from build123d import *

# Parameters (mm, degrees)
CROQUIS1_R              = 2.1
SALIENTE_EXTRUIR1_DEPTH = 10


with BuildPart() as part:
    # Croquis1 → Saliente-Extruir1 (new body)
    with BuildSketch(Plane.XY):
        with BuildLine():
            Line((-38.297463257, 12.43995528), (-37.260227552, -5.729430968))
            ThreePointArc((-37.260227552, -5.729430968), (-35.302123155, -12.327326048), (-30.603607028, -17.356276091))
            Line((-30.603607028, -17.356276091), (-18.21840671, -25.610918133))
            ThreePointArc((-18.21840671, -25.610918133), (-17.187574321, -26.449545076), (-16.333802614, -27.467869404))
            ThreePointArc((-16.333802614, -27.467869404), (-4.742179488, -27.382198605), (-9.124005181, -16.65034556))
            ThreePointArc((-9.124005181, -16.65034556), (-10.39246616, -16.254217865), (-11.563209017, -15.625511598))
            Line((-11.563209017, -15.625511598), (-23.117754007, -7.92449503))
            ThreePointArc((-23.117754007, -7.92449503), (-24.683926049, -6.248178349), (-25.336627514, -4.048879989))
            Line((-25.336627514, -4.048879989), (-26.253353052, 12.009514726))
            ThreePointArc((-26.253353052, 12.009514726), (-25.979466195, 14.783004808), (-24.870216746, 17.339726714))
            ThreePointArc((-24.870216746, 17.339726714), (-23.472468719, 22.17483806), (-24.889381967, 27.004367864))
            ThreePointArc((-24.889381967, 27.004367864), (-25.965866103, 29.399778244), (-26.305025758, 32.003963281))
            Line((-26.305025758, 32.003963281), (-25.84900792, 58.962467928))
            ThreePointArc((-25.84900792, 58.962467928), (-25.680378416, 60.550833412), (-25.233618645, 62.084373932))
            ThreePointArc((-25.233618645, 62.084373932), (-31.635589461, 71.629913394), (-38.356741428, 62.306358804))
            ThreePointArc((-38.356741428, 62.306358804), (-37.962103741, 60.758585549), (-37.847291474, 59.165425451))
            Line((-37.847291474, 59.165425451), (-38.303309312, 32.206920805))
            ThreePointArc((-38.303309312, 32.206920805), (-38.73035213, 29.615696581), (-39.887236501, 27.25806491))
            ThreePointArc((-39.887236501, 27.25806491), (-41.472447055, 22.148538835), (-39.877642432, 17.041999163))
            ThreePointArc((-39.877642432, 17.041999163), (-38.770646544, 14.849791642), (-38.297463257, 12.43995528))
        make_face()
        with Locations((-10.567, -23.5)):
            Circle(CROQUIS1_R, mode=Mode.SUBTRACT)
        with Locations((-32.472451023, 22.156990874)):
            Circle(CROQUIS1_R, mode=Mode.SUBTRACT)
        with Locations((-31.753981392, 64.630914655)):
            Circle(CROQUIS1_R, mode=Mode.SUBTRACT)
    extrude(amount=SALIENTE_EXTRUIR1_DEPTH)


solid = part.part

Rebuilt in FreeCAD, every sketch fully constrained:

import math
import FreeCAD as App
import Part
import Sketcher
Q = App.Units.Quantity

doc = App.newDocument("Part")
body = doc.addObject("PartDesign::Body", "Body")

# Sketch on XY plane
sketch1 = body.newObject("Sketcher::SketchObject", "Sketch")
sketch1.AttachmentSupport = (doc.getObject("XY_Plane"), [""])
sketch1.MapMode = "FlatFace"
sketch1.addGeometry(Part.LineSegment(App.Vector(-38.3, 12.4, 0), App.Vector(-37.3, -5.7, 0)), False)
sketch1.addGeometry(Part.ArcOfCircle(Part.Circle(App.Vector(-22.3, -4.9, 0), App.Vector(0, 0, 1), 15), math.radians(-177), math.radians(-124)), False)
sketch1.addGeometry(Part.LineSegment(App.Vector(-30.6, -17.4, 0), App.Vector(-18.2, -25.6, 0)), False)
sketch1.addGeometry(Part.ArcOfCircle(Part.Circle(App.Vector(-22.1, -31.4, 0), App.Vector(0, 0, 1), 7), math.radians(35), math.radians(56)), False)
sketch1.addGeometry(Part.ArcOfCircle(Part.Circle(App.Vector(-10.6, -23.5, 0), App.Vector(0, 0, 1), 7), math.radians(-145), math.radians(78)), False)
sketch1.addGeometry(Part.ArcOfCircle(Part.Circle(App.Vector(-7.7, -9.8, 0), App.Vector(0, 0, 1), 7), math.radians(-124), math.radians(-102)), False)
sketch1.addGeometry(Part.LineSegment(App.Vector(-11.6, -15.6, 0), App.Vector(-23.1, -7.9, 0)), False)
sketch1.addGeometry(Part.ArcOfCircle(Part.Circle(App.Vector(-20.3, -3.8, 0), App.Vector(0, 0, 1), 5), math.radians(-177), math.radians(-124)), False)
sketch1.addGeometry(Part.LineSegment(App.Vector(-25.3, -4, 0), App.Vector(-26.3, 12, 0)), False)
sketch1.addGeometry(Part.ArcOfCircle(Part.Circle(App.Vector(-17.3, 12.5, 0), App.Vector(0, 0, 1), 9), math.radians(148), math.radians(183)), False)
sketch1.addGeometry(Part.ArcOfCircle(Part.Circle(App.Vector(-32.5, 22.2, 0), App.Vector(0, 0, 1), 9), math.radians(-32), math.radians(33)), False)
sketch1.addGeometry(Part.ArcOfCircle(Part.Circle(App.Vector(-17.3, 31.9, 0), App.Vector(0, 0, 1), 9), math.radians(179), math.radians(213)), False)
sketch1.addGeometry(Part.LineSegment(App.Vector(-26.3, 32, 0), App.Vector(-25.8, 59, 0)), False)
sketch1.addGeometry(Part.ArcOfCircle(Part.Circle(App.Vector(-16.9, 58.8, 0), App.Vector(0, 0, 1), 9), math.radians(159), math.radians(179)), False)
sketch1.addGeometry(Part.ArcOfCircle(Part.Circle(App.Vector(-31.8, 64.6, 0), App.Vector(0, 0, 1), 7), math.radians(-21), math.radians(199)), False)
sketch1.addGeometry(Part.ArcOfCircle(Part.Circle(App.Vector(-46.8, 59.3, 0), App.Vector(0, 0, 1), 9), math.radians(-1), math.radians(19)), False)
sketch1.addGeometry(Part.LineSegment(App.Vector(-37.8, 59.2, 0), App.Vector(-38.3, 32.2, 0)), False)
sketch1.addGeometry(Part.ArcOfCircle(Part.Circle(App.Vector(-47.3, 32.4, 0), App.Vector(0, 0, 1), 9), math.radians(-35), math.radians(-1)), False)
sketch1.addGeometry(Part.ArcOfCircle(Part.Circle(App.Vector(-32.5, 22.2, 0), App.Vector(0, 0, 1), 9), math.radians(145), math.radians(215)), False)
sketch1.addGeometry(Part.ArcOfCircle(Part.Circle(App.Vector(-47.3, 11.9, 0), App.Vector(0, 0, 1), 9), math.radians(3), math.radians(35)), False)
sketch1.addGeometry(Part.Circle(App.Vector(-10.6, -23.5, 0), App.Vector(0, 0, 1), 2.1), False)
sketch1.addGeometry(Part.Circle(App.Vector(-32.5, 22.2, 0), App.Vector(0, 0, 1), 2.1), False)
sketch1.addGeometry(Part.Circle(App.Vector(-31.8, 64.6, 0), App.Vector(0, 0, 1), 2.1), False)
sketch1.addConstraint(Sketcher.Constraint("Tangent", 0, 2, 1, 1))
sketch1.addConstraint(Sketcher.Constraint("Tangent", 1, 2, 2, 1))
sketch1.addConstraint(Sketcher.Constraint("Tangent", 2, 2, 3, 2))
sketch1.addConstraint(Sketcher.Constraint("Tangent", 3, 1, 4, 1))
sketch1.addConstraint(Sketcher.Constraint("Tangent", 4, 2, 5, 2))
sketch1.addConstraint(Sketcher.Constraint("Tangent", 5, 1, 6, 1))
sketch1.addConstraint(Sketcher.Constraint("Tangent", 6, 2, 7, 2))
sketch1.addConstraint(Sketcher.Constraint("Tangent", 7, 1, 8, 1))
sketch1.addConstraint(Sketcher.Constraint("Tangent", 8, 2, 9, 2))
sketch1.addConstraint(Sketcher.Constraint("Tangent", 9, 1, 10, 1))
sketch1.addConstraint(Sketcher.Constraint("Tangent", 10, 2, 11, 2))
sketch1.addConstraint(Sketcher.Constraint("Tangent", 11, 1, 12, 1))
sketch1.addConstraint(Sketcher.Constraint("Tangent", 12, 2, 13, 2))
sketch1.addConstraint(Sketcher.Constraint("Tangent", 13, 1, 14, 1))
sketch1.addConstraint(Sketcher.Constraint("Tangent", 14, 2, 15, 2))
sketch1.addConstraint(Sketcher.Constraint("Tangent", 15, 1, 16, 1))
sketch1.addConstraint(Sketcher.Constraint("Tangent", 16, 2, 17, 2))
sketch1.addConstraint(Sketcher.Constraint("Tangent", 17, 1, 18, 1))
sketch1.addConstraint(Sketcher.Constraint("Tangent", 18, 2, 19, 2))
sketch1.addConstraint(Sketcher.Constraint("Tangent", 19, 1, 0, 1))
sketch1.addConstraint(Sketcher.Constraint("Coincident", 18, 3, 10, 3))
sketch1.addConstraint(Sketcher.Constraint("Coincident", 20, 3, 4, 3))
sketch1.addConstraint(Sketcher.Constraint("Coincident", 21, 3, 10, 3))
sketch1.addConstraint(Sketcher.Constraint("Coincident", 22, 3, 14, 3))
sketch1.addConstraint(Sketcher.Constraint("Equal", 3, 4))
sketch1.addConstraint(Sketcher.Constraint("Equal", 4, 5))
sketch1.addConstraint(Sketcher.Constraint("Equal", 9, 10))
sketch1.addConstraint(Sketcher.Constraint("Equal", 10, 11))
sketch1.addConstraint(Sketcher.Constraint("Equal", 11, 13))
sketch1.addConstraint(Sketcher.Constraint("Equal", 5, 14))
sketch1.addConstraint(Sketcher.Constraint("Equal", 13, 15))
sketch1.addConstraint(Sketcher.Constraint("Equal", 15, 17))
sketch1.addConstraint(Sketcher.Constraint("Equal", 17, 18))
sketch1.addConstraint(Sketcher.Constraint("Equal", 18, 19))
sketch1.addConstraint(Sketcher.Constraint("Equal", 20, 21))
sketch1.addConstraint(Sketcher.Constraint("Equal", 21, 22))
sketch1.addConstraint(Sketcher.Constraint("Parallel", 2, 6))
sketch1.addConstraint(Sketcher.Constraint("Parallel", 0, 8))
sketch1.addConstraint(Sketcher.Constraint("Parallel", 12, 16))
sketch1.addConstraint(Sketcher.Constraint("Equal", 12, 16))
sketch1.addConstraint(Sketcher.Constraint("Radius", 1, Q("15 mm")))
sketch1.addConstraint(Sketcher.Constraint("Radius", 3, Q("7 mm")))
sketch1.addConstraint(Sketcher.Constraint("Radius", 7, Q("5 mm")))
sketch1.addConstraint(Sketcher.Constraint("Radius", 9, Q("9 mm")))
sketch1.addConstraint(Sketcher.Constraint("Diameter", 20, Q("4.2 mm")))
sketch1.addConstraint(Sketcher.Constraint("DistanceY", 4, 3, -1, 1, Q("23.5 mm")))
sketch1.addConstraint(Sketcher.Constraint("DistanceX", 4, 3, -1, 1, Q("10.567 mm")))
sketch1.addConstraint(Sketcher.Constraint("DistanceY", -1, 1, 18, 2, Q("17.041999 mm")))
sketch1.addConstraint(Sketcher.Constraint("DistanceX", 14, 3, 9, 3, Q("14.485999 mm")))
sketch1.addConstraint(Sketcher.Constraint("DistanceX", 1, 2, 3, 3, Q("8.503002 mm")))
sketch1.addConstraint(Sketcher.Constraint("DistanceX", 6, 2, 7, 3, Q("2.772999 mm")))
sketch1.addConstraint(Sketcher.Constraint("DistanceX", 1, 3, 5, 3, Q("14.6036 mm")))
sketch1.addConstraint(Sketcher.Constraint("DistanceY", 3, 3, 9, 3, Q("43.958201 mm")))
sketch1.addConstraint(Sketcher.Constraint("DistanceY", 7, 3, 10, 3, Q("25.9209 mm")))
sketch1.addConstraint(Sketcher.Constraint("DistanceY", 11, 3, 15, 3, Q("27.465898 mm")))
sketch1.addConstraint(Sketcher.Constraint("DistanceX", 2, 2, 4, 2, Q("9.094402 mm")))
sketch1.addConstraint(Sketcher.Constraint("DistanceX", 0, 2, 7, 1, Q("11.9236 mm")))
sketch1.addConstraint(Sketcher.Constraint("Distance", 12, Q("26.962361 mm")))
sketch1.addConstraint(Sketcher.Constraint("DistanceY", -1, 1, 13, 3, Q("58.81025 mm")))
pad1 = body.newObject("PartDesign::Pad", "Pad")
pad1.Profile = sketch1
pad1.Length = 10

doc.recompute()
